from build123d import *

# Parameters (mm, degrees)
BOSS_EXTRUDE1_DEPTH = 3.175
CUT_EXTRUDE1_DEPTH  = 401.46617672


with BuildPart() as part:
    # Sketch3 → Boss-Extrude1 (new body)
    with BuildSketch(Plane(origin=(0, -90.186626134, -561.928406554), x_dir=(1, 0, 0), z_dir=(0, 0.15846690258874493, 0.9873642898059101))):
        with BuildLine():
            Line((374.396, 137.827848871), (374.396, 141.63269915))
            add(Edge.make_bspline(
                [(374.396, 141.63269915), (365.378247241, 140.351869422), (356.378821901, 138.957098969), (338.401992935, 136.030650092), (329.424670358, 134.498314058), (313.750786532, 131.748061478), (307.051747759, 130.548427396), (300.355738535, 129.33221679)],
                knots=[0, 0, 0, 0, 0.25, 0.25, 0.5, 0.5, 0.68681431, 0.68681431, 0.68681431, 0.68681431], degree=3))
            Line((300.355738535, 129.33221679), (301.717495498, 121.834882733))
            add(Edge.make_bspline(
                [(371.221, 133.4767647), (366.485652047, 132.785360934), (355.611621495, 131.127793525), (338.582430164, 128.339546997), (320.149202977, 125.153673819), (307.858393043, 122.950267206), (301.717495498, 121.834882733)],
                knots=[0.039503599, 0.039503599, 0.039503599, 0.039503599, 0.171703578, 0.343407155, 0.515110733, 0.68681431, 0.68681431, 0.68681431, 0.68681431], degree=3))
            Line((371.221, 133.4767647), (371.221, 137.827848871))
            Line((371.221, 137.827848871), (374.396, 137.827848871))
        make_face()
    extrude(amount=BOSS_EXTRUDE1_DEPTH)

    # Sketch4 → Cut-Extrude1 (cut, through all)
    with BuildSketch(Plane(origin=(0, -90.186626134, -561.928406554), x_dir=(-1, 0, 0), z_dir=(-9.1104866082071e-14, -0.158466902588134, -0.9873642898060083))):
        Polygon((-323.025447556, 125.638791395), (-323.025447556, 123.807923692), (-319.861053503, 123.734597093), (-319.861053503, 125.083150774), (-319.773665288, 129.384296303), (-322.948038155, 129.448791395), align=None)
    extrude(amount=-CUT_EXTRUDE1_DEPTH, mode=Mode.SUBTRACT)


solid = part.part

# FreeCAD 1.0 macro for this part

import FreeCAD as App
import Part
import Sketcher
from FreeCAD import Vector
Q = App.Units.Quantity


def add_polygon(sketch, points):
    """Adds a closed chain of lines whose ends are joined by coincident constraints."""
    first, n = sketch.GeometryCount, len(points)
    for a, b in zip(points, points[1:] + points[:1]):
        sketch.addGeometry(Part.LineSegment(App.Vector(*a, 0), App.Vector(*b, 0)), False)
    for i in range(n):
        sketch.addConstraint(Sketcher.Constraint("Coincident", first + i, 2, first + (i + 1) % n, 1))

doc = App.newDocument("Part")
body = doc.addObject("PartDesign::Body", "Body")

# Sketch on an angled plane
sketch1 = body.newObject("Sketcher::SketchObject", "Sketch")
sketch1.Placement = App.Placement(Vector(0, -90.186626, -561.928407), App.Rotation(Vector(1, 0, 0), Vector(0, 0.98736429, -0.158466903), Vector(0, 0.158466903, 0.98736429), "ZXY"))
sketch1.addGeometry(Part.LineSegment(Vector(374.396, 137.827849, 0), Vector(374.396, 141.632699, 0)), False)
sketch1.addGeometry(Part.BSplineCurve([Vector(374.396, 141.632699, 0), Vector(365.378247, 140.351869, 0), Vector(356.378822, 138.957099, 0), Vector(338.401993, 136.03065, 0), Vector(329.42467, 134.498314, 0), Vector(313.750787, 131.748062, 0), Vector(307.051748, 130.548427, 0), Vector(300.355739, 129.332217, 0)], [4, 2, 2, 4], [0, 0.25, 0.5, 0.68681431], False, 3, [1, 1, 1, 1, 1, 1, 1, 1], False), False)
sketch1.addGeometry(Part.LineSegment(Vector(300.355739, 129.332217, 0), Vector(301.717495, 121.834883, 0)), False)
sketch1.addGeometry(Part.BSplineCurve([Vector(371.221, 133.476765, 0), Vector(366.485652, 132.785361, 0), Vector(355.611621, 131.127794, 0), Vector(338.58243, 128.339547, 0), Vector(320.149203, 125.153674, 0), Vector(307.858393, 122.950267, 0), Vector(301.717495, 121.834883, 0)], [4, 1, 1, 1, 4], [0.039503599, 0.171703578, 0.343407155, 0.515110733, 0.68681431], False, 3, [1, 1, 1, 1, 1, 1, 1], False), False)
sketch1.addGeometry(Part.LineSegment(Vector(371.221, 133.476765, 0), Vector(371.221, 137.827849, 0)), False)
sketch1.addGeometry(Part.LineSegment(Vector(371.221, 137.827849, 0), Vector(374.396, 137.827849, 0)), False)
sketch1.addConstraint(Sketcher.Constraint("Block", 1))
sketch1.addConstraint(Sketcher.Constraint("Block", 3))
sketch1.addConstraint(Sketcher.Constraint("Coincident", 0, 2, 1, 1))
sketch1.addConstraint(Sketcher.Constraint("Coincident", 1, 2, 2, 1))
sketch1.addConstraint(Sketcher.Constraint("Coincident", 2, 2, 3, 2))
sketch1.addConstraint(Sketcher.Constraint("Coincident", 3, 1, 4, 1))
sketch1.addConstraint(Sketcher.Constraint("Coincident", 4, 2, 5, 1))
sketch1.addConstraint(Sketcher.Constraint("Coincident", 5, 2, 0, 1))
sketch1.addConstraint(Sketcher.Constraint("Vertical", 0))
sketch1.addConstraint(Sketcher.Constraint("Vertical", 4))
sketch1.addConstraint(Sketcher.Constraint("Horizontal", 5))
sketch1.addConstraint(Sketcher.Constraint("DistanceY", 0, 1, 0, 2, Q("3.80485 mm")))
pad1 = body.newObject("PartDesign::Pad", "Pad")
pad1.Profile = sketch1
pad1.Length = Q("0.125 in")

# Sketch on an angled plane
sketch2 = body.newObject("Sketcher::SketchObject", "Sketch001")
sketch2.Placement = App.Placement(Vector(0, -90.186626, -561.928407), App.Rotation(Vector(-1, 0, 0), Vector(0, 0.98736429, -0.158466903), Vector(0, -0.158466903, -0.98736429), "ZXY"))
add_polygon(sketch2, [(-323, 125.6), (-323, 123.8), (-319.9, 123.7), (-319.9, 125.1), (-319.8, 129.4), (-322.9, 129.4)])  # lines 0-5
sketch2.addConstraint(Sketcher.Constraint("Vertical", 0))
sketch2.addConstraint(Sketcher.Constraint("Vertical", 2))
sketch2.addConstraint(Sketcher.Constraint("Perpendicular", 3, 4))
sketch2.addConstraint(Sketcher.Constraint("Perpendicular", 4, 5))
sketch2.addConstraint(Sketcher.Constraint("DistanceY", 5, 2, 4, 2, Q("0.15 in")))
sketch2.addConstraint(Sketcher.Constraint("DistanceY", 1, 2, 3, 2, Q("5.649699 mm")))
sketch2.addConstraint(Sketcher.Constraint("DistanceY", 0, 2, 0, 1, Q("1.830868 mm")))
sketch2.addConstraint(Sketcher.Constraint("DistanceY", 2, 1, 2, 2, Q("1.348554 mm")))
sketch2.addConstraint(Sketcher.Constraint("DistanceY", -1, 1, 2, 2, Q("125.083151 mm")))
sketch2.addConstraint(Sketcher.Constraint("DistanceX", 4, 2, -1, 1, Q("322.948038 mm")))
sketch2.addConstraint(Sketcher.Constraint("DistanceY", -1, 1, 4, 2, Q("129.448791 mm")))
sketch2.addConstraint(Sketcher.Constraint("DistanceX", 2, 2, 3, 2, Q("0.087388 mm")))
pocket1 = body.newObject("PartDesign::Pocket", "Pocket")
pocket1.Profile = sketch2
pocket1.Type = "ThroughAll"

doc.recompute()
